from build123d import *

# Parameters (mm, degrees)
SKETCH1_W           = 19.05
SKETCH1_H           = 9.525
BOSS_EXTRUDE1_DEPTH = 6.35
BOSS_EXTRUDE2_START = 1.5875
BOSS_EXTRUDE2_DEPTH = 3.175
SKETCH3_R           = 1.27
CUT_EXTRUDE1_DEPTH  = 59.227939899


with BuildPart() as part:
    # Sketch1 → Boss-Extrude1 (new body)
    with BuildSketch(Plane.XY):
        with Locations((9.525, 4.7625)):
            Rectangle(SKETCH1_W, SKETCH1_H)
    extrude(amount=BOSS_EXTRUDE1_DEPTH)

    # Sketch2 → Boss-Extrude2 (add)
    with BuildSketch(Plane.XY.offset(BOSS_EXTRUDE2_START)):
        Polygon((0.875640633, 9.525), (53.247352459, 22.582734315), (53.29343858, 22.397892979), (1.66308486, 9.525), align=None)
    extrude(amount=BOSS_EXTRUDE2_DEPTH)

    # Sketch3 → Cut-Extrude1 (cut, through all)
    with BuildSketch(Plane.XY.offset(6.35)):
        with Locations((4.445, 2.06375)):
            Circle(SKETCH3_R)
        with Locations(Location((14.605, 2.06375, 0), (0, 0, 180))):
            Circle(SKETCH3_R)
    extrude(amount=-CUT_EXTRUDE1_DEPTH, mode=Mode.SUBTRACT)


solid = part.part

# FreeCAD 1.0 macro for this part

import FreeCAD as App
import Part
import Sketcher

V = App.Vector
Q = App.Units.Quantity


def add_polygon(sketch, points):
    """Adds a closed chain of lines whose ends are joined by coincident constraints."""
    first, n = sketch.GeometryCount, len(points)
    for a, b in zip(points, points[1:] + points[:1]):
        sketch.addGeometry(Part.LineSegment(App.Vector(*a, 0), App.Vector(*b, 0)), False)
    for i in range(n):
        sketch.addConstraint(Sketcher.Constraint("Coincident", first + i, 2, first + (i + 1) % n, 1))

doc = App.newDocument("Part")
body = doc.addObject("PartDesign::Body", "Body")

# Sketch on XY plane
sketch1 = body.newObject("Sketcher::SketchObject", "Sketch")
sketch1.AttachmentSupport = (doc.getObject("XY_Plane"), [""])
sketch1.MapMode = "FlatFace"
add_polygon(sketch1, [(0, 10), (0, 0), (19, 0), (19, 10)])  # lines 0-3
sketch1.addConstraint(Sketcher.Constraint("Vertical", 0))
sketch1.addConstraint(Sketcher.Constraint("Horizontal", 1))
sketch1.addConstraint(Sketcher.Constraint("Vertical", 2))
sketch1.addConstraint(Sketcher.Constraint("Horizontal", 3))
sketch1.addConstraint(Sketcher.Constraint("Coincident", 0, 2, -1, 1))
sketch1.addConstraint(Sketcher.Constraint("DistanceX", 1, 1, 1, 2, Q("0.75 in")))
sketch1.addConstraint(Sketcher.Constraint("DistanceY", 0, 2, 0, 1, Q("0.375 in")))
pad1 = body.newObject("PartDesign::Pad", "Pad")
pad1.Profile = sketch1
pad1.Length = Q("0.25 in")

# Sketch on XY plane
sketch2 = body.newObject("Sketcher::SketchObject", "Sketch001")
sketch2.AttachmentSupport = (doc.getObject("XY_Plane"), [""])
sketch2.MapMode = "FlatFace"
sketch2.AttachmentOffset = App.Placement(V(0, 0, 0.0625 * 25.4), App.Rotation())
add_polygon(sketch2, [(53.25, 22.58), (0.88, 9.53), (1.66, 9.53), (53.29, 22.4)])  # lines 0-3
sketch2.addConstraint(Sketcher.Constraint("Horizontal", 1))
sketch2.addConstraint(Sketcher.Constraint("Parallel", 0, 2))
sketch2.addConstraint(Sketcher.Constraint("Perpendicular", 2, 3))
sketch2.addConstraint(Sketcher.Constraint("Angle", 0, Q("-166 deg")))
sketch2.addConstraint(Sketcher.Constraint("Distance", 0, Q("2.125 in")))
sketch2.addConstraint(Sketcher.Constraint("DistanceY", -1, 1, 0, 2, Q("0.375 in")))
sketch2.addConstraint(Sketcher.Constraint("Distance", 3, Q("0.0075 in")))
sketch2.addConstraint(Sketcher.Constraint("DistanceX", -1, 1, 0, 2, 0.875641))
pad2 = body.newObject("PartDesign::Pad", "Pad001")
pad2.Profile = sketch2
pad2.Length = Q("0.125 in")

# Sketch on XY plane
sketch3 = body.newObject("Sketcher::SketchObject", "Sketch002")
sketch3.AttachmentSupport = (doc.getObject("XY_Plane"), [""])
sketch3.MapMode = "FlatFace"
sketch3.AttachmentOffset = App.Placement(V(0, 0, 0.25 * 25.4), App.Rotation())
sketch3.addGeometry(Part.Circle(V(4.4, 2.1, 0), V(0, 0, 1), 1.3), False)
sketch3.addGeometry(Part.Circle(V(14.6, 2.1, 0), V(0, 0, 1), 1.3), False)
sketch3.addConstraint(Sketcher.Constraint("Equal", 0, 1))
sketch3.addConstraint(Sketcher.Constraint("Horizontal", 0, 3, 1, 3))
sketch3.addConstraint(Sketcher.Constraint("Diameter", 0, Q("0.1 in")))
sketch3.addConstraint(Sketcher.Constraint("DistanceX", 0, 3, 1, 3, Q("0.4 in")))
sketch3.addConstraint(Sketcher.Constraint("DistanceX", -1, 1, 0, 3, Q("0.175 in")))
sketch3.addConstraint(Sketcher.Constraint("DistanceY", -1, 1, 0, 3, 2.06375))
pocket1 = body.newObject("PartDesign::Pocket", "Pocket")
pocket1.Profile = sketch3
pocket1.Type = "ThroughAll"

doc.recompute()
